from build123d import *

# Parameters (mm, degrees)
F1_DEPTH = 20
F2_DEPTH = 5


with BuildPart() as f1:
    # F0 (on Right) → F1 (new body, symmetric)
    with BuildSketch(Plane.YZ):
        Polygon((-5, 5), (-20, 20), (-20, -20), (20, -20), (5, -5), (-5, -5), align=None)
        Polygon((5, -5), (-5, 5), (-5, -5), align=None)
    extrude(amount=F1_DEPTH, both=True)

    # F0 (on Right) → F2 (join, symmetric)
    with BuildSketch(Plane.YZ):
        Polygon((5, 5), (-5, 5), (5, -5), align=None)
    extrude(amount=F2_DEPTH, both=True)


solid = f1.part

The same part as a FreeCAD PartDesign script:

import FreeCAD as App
import Part
import Sketcher

doc = App.newDocument("Part")
body = doc.addObject("PartDesign::Body", "Body")

# Sketch on YZ plane
sketch1 = body.newObject("Sketcher::SketchObject", "Sketch")
sketch1.AttachmentSupport = (doc.getObject("YZ_Plane"), [""])
sketch1.MapMode = "FlatFace"
sketch1.addGeometry(Part.LineSegment(App.Vector(-20, 20, 0), App.Vector(-20, -20, 0)), False)
sketch1.addGeometry(Part.LineSegment(App.Vector(-20, -20, 0), App.Vector(20, -20, 0)), False)
sketch1.addGeometry(Part.LineSegment(App.Vector(20, -20, 0), App.Vector(-20, 20, 0)), False)
sketch1.addConstraint(Sketcher.Constraint("Coincident", 0, 2, 1, 1))
sketch1.addConstraint(Sketcher.Constraint("Coincident", 1, 2, 2, 1))
sketch1.addConstraint(Sketcher.Constraint("Coincident", 2, 2, 0, 1))
sketch1.addConstraint(Sketcher.Constraint("Vertical", 0))
sketch1.addConstraint(Sketcher.Constraint("Horizontal", 1))
sketch1.addConstraint(Sketcher.Constraint("Symmetric", 1, 2, 2, 2, -1, 1))
sketch1.addConstraint(Sketcher.Constraint("Equal", 1, 0))
sketch1.addConstraint(Sketcher.Constraint("DistanceX", 1, 1, 1, 2, 40.0))
pad1 = body.newObject("PartDesign::Pad", "Pad")
pad1.Profile = sketch1
pad1.Length = 40
pad1.Midplane = True

# Sketch on YZ plane
sketch2 = body.newObject("Sketcher::SketchObject", "Sketch001")
sketch2.AttachmentSupport = (doc.getObject("YZ_Plane"), [""])
sketch2.MapMode = "FlatFace"
sketch2.addGeometry(Part.LineSegment(App.Vector(5, 5, 0), App.Vector(-5, 5, 0)), False)
sketch2.addGeometry(Part.LineSegment(App.Vector(-5, 5, 0), App.Vector(5, -5, 0)), False)
sketch2.addGeometry(Part.LineSegment(App.Vector(5, -5, 0), App.Vector(5, 5, 0)), False)
sketch2.addConstraint(Sketcher.Constraint("Coincident", 0, 2, 1, 1))
sketch2.addConstraint(Sketcher.Constraint("Coincident", 1, 2, 2, 1))
sketch2.addConstraint(Sketcher.Constraint("Coincident", 2, 2, 0, 1))
sketch2.addConstraint(Sketcher.Constraint("Horizontal", 0))
sketch2.addConstraint(Sketcher.Constraint("Vertical", 2))
sketch2.addConstraint(Sketcher.Constraint("Symmetric", 0, 2, 1, 2, -1, 1))
sketch2.addConstraint(Sketcher.Constraint("Equal", 0, 2))
sketch2.addConstraint(Sketcher.Constraint("DistanceX", 0, 2, 0, 1, 10.0))
pad2 = body.newObject("PartDesign::Pad", "Pad001")
pad2.Profile = sketch2
pad2.Length = 10
pad2.Midplane = True

doc.recompute()
